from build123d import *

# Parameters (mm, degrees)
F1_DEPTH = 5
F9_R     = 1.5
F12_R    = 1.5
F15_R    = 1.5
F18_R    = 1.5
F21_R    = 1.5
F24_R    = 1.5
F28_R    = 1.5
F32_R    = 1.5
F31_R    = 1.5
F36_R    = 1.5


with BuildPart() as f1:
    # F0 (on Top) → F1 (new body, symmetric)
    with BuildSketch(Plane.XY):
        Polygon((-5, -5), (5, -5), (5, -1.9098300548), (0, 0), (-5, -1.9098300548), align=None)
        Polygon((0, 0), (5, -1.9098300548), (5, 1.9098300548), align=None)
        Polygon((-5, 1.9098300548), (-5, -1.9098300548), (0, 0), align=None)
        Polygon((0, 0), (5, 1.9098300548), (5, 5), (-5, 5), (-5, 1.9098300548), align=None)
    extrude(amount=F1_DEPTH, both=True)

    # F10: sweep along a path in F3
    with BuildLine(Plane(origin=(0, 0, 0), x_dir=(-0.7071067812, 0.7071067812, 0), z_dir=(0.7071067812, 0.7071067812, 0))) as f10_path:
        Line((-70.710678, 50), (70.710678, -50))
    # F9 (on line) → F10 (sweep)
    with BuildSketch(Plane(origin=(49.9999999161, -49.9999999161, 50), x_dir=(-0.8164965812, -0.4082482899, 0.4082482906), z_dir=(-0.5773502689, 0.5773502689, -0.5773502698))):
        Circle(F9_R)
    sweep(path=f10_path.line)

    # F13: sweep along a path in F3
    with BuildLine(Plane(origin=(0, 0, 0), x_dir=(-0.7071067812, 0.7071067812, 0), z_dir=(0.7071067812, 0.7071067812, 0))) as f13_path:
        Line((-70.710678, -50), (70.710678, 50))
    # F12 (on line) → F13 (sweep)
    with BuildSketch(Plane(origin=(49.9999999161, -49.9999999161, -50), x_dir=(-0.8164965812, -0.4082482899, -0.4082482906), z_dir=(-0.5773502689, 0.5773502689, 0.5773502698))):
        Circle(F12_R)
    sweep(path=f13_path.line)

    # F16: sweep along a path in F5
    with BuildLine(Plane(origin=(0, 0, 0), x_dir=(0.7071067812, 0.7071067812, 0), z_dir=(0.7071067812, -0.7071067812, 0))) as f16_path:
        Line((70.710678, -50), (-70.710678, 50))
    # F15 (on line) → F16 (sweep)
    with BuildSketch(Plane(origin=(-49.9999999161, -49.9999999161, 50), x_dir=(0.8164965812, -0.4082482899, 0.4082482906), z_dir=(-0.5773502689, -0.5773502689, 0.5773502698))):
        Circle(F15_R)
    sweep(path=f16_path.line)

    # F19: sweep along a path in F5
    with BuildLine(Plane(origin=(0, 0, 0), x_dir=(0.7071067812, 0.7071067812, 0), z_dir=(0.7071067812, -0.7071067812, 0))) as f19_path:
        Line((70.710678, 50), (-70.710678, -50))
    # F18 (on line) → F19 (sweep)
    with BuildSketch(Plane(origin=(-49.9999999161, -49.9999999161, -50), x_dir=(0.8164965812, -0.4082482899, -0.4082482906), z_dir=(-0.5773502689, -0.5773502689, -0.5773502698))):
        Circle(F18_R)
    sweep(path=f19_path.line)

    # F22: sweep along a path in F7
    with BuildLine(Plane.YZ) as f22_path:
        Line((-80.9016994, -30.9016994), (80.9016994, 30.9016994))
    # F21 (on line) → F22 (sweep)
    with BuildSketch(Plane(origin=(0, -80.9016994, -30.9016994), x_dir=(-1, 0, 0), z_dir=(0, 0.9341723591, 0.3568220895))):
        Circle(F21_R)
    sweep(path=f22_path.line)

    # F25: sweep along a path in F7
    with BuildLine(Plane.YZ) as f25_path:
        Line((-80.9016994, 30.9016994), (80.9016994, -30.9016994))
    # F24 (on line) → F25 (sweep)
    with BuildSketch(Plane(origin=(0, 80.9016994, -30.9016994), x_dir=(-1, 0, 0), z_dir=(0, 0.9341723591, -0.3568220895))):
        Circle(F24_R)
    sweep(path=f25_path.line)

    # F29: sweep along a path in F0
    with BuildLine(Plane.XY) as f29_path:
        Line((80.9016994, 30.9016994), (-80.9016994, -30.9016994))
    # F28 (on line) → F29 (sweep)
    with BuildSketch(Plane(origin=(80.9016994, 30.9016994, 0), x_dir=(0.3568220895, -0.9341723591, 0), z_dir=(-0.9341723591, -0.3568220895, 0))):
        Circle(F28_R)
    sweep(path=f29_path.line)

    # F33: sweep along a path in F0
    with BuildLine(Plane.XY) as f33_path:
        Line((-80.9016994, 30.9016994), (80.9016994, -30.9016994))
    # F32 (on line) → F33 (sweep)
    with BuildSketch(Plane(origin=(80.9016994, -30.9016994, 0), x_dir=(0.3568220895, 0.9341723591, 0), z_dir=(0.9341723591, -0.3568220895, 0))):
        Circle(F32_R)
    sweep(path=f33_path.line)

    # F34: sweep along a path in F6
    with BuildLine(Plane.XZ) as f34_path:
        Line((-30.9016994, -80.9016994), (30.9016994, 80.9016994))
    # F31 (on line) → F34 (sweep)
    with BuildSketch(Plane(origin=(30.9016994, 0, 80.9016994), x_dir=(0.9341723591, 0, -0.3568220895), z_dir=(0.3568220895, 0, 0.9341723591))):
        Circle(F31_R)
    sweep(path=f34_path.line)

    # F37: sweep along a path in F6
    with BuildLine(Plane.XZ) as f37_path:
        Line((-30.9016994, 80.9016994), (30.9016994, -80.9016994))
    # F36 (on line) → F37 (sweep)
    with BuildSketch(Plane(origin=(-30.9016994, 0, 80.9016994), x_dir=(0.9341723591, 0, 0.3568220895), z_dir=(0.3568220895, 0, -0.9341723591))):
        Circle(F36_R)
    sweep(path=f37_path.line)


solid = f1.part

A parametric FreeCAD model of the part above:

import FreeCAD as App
import Part
import Sketcher
from FreeCAD import Vector
Q = App.Units.Quantity

doc = App.newDocument("Part")
params = doc.addObject("Spreadsheet::Sheet", "Params")
for row, (alias, value) in enumerate([
    ("sketch1_width", "10 mm"),
    ("pad1_length", "10 mm"),
    ("sketch2_diameter", "3 mm"),
    ("sketch4_diameter", "3 mm"),
    ("sketch6_diameter", "3 mm"),
    ("sketch8_diameter", "3 mm"),
    ("sketch10_diameter", "3 mm"),
    ("sketch12_diameter", "3 mm"),
    ("sketch14_diameter", "3 mm"),
    ("sketch16_diameter", "3 mm"),
    ("sketch18_diameter", "3 mm"),
    ("sketch20_diameter", "3 mm"),
], start=1):
    params.set(f"A{row}", alias)
    params.set(f"B{row}", "=" + value)
    params.setAlias(f"B{row}", alias)

body = doc.addObject("PartDesign::Body", "Body")

# Sketch on XY plane
sketch1 = doc.addObject("Sketcher::SketchObject", "Sketch")
body.addObject(sketch1)
sketch1.AttachmentSupport = (doc.XY_Plane, [""])
sketch1.MapMode = "FlatFace"
sketch1.addGeometry([
    Part.LineSegment(Vector(-5, -5, 0), Vector(5, -5, 0)),
    Part.LineSegment(Vector(5, -5, 0), Vector(5, 5, 0)),
    Part.LineSegment(Vector(5, 5, 0), Vector(-5, 5, 0)),
    Part.LineSegment(Vector(-5, 5, 0), Vector(-5, -5, 0)),
], False)
sketch1.addConstraint([
    Sketcher.Constraint("Coincident", 0, 2, 1, 1),
    Sketcher.Constraint("Coincident", 1, 2, 2, 1),
    Sketcher.Constraint("Coincident", 2, 2, 3, 1),
    Sketcher.Constraint("Coincident", 3, 2, 0, 1),
    Sketcher.Constraint("Horizontal", 0),
    Sketcher.Constraint("Vertical", 1),
    Sketcher.Constraint("Horizontal", 2),
    Sketcher.Constraint("Vertical", 3),
    Sketcher.Constraint("Symmetric", 0, 2, 2, 2, -1, 1),
    Sketcher.Constraint("Equal", 2, 1),
    Sketcher.Constraint("DistanceX", 0, 1, 0, 2, Q("10 mm")),
])
sketch1.setExpression("Constraints[10]", "Params.sketch1_width")
pad1 = doc.addObject("PartDesign::Pad", "Pad")
body.addObject(pad1)
pad1.Profile = sketch1
pad1.setExpression("Length", "Params.pad1_length")
pad1.Midplane = True

# Sketch on an angled plane
sketch2 = doc.addObject("Sketcher::SketchObject", "Sketch001")
body.addObject(sketch2)
sketch2.Placement = App.Placement(Vector(50, -50, 50), App.Rotation(Vector(-0.816496581, -0.40824829, 0.408248291), Vector(0, 0.707106782, 0.707106781), Vector(-0.577350269, 0.577350269, -0.57735027), "ZXY"))
sketch2.addGeometry(Part.Circle(Vector(0, 0, 0), Vector(0, 0, 1), 1.5), False)
sketch2.addConstraint([
    Sketcher.Constraint("Coincident", 0, 3, -1, 1),
    Sketcher.Constraint("Diameter", 0, Q("3 mm")),
])
sketch2.setExpression("Constraints[1]", "Params.sketch2_diameter")

# Sketch on an angled plane
sketch3 = doc.addObject("Sketcher::SketchObject", "Sketch002")
body.addObject(sketch3)
sketch3.Placement = App.Placement(Vector(0, 0, 0), App.Rotation(Vector(-0.707106781, 0, -0.707106782), Vector(0, 1.000000001, 0), Vector(0.707106782, 0, -0.707106781), "ZXY"))
sketch3.addGeometry(Part.LineSegment(Vector(-71, -50, 0), Vector(71, 50, 0)), False)
sketch3.addConstraint([
    Sketcher.Constraint("Symmetric", 0, 1, 0, 2, -1, 1),
    Sketcher.Constraint("DistanceY", 0, 1, -1, 1, Q("50 mm")),
    Sketcher.Constraint("Distance", 0, Q("173.205081 mm")),
])
doc.recompute()

additivepipe = doc.addObject("PartDesign::AdditivePipe", "AdditivePipe")
body.addObject(additivepipe)
additivepipe.Profile = sketch2
additivepipe.Spine = (sketch3, ["Edge1"])

# Sketch on an angled plane
sketch4 = doc.addObject("Sketcher::SketchObject", "Sketch003")
body.addObject(sketch4)
sketch4.Placement = App.Placement(Vector(50, -50, -50), App.Rotation(Vector(-0.816496581, -0.40824829, -0.408248291), Vector(0, -0.707106782, 0.707106781), Vector(-0.577350269, 0.577350269, 0.57735027), "ZXY"))
sketch4.addGeometry(Part.Circle(Vector(0, 0, 0), Vector(0, 0, 1), 1.5), False)
sketch4.addConstraint([
    Sketcher.Constraint("Coincident", 0, 3, -1, 1),
    Sketcher.Constraint("Diameter", 0, Q("3 mm")),
])
sketch4.setExpression("Constraints[1]", "Params.sketch4_diameter")

# Sketch on an angled plane
sketch5 = doc.addObject("Sketcher::SketchObject", "Sketch004")
body.addObject(sketch5)
sketch5.Placement = App.Placement(Vector(0, 0, 0), App.Rotation(Vector(-0.707106781, 0, 0.707106782), Vector(0, 1.000000001, 0), Vector(-0.707106782, 0, -0.707106781), "ZXY"))
sketch5.addGeometry(Part.LineSegment(Vector(-71, -50, 0), Vector(71, 50, 0)), False)
sketch5.addConstraint([
    Sketcher.Constraint("Symmetric", 0, 1, 0, 2, -1, 1),
    Sketcher.Constraint("DistanceY", 0, 1, -1, 1, Q("50 mm")),
    Sketcher.Constraint("Distance", 0, Q("173.205081 mm")),
])
doc.recompute()

additivepipe2 = doc.addObject("PartDesign::AdditivePipe", "AdditivePipe001")
body.addObject(additivepipe2)
additivepipe2.Profile = sketch4
additivepipe2.Spine = (sketch5, ["Edge1"])

# Sketch on an angled plane
sketch6 = doc.addObject("Sketcher::SketchObject", "Sketch005")
body.addObject(sketch6)
sketch6.Placement = App.Placement(Vector(-50, -50, 50), App.Rotation(Vector(0.816496581, -0.40824829, 0.408248291), Vector(0, 0.707106782, 0.707106781), Vector(-0.577350269, -0.577350269, 0.57735027), "ZXY"))
sketch6.addGeometry(Part.Circle(Vector(0, 0, 0), Vector(0, 0, 1), 1.5), False)
sketch6.addConstraint([
    Sketcher.Constraint("Coincident", 0, 3, -1, 1),
    Sketcher.Constraint("Diameter", 0, Q("3 mm")),
])
sketch6.setExpression("Constraints[1]", "Params.sketch6_diameter")

# Sketch on an angled plane
sketch7 = doc.addObject("Sketcher::SketchObject", "Sketch006")
body.addObject(sketch7)
sketch7.Placement = App.Placement(Vector(0, 0, 0), App.Rotation(Vector(-0.707106781, 0, 0.707106782), Vector(0, 1.000000001, 0), Vector(-0.707106782, 0, -0.707106781), "ZXY"))
sketch7.addGeometry(Part.LineSegment(Vector(-71, 50, 0), Vector(71, -50, 0)), False)
sketch7.addConstraint([
    Sketcher.Constraint("Symmetric", 0, 1, 0, 2, -1, 1),
    Sketcher.Constraint("DistanceY", -1, 1, 0, 1, Q("50 mm")),
    Sketcher.Constraint("Distance", 0, Q("173.205081 mm")),
])
doc.recompute()

additivepipe3 = doc.addObject("PartDesign::AdditivePipe", "AdditivePipe002")
body.addObject(additivepipe3)
additivepipe3.Profile = sketch6
additivepipe3.Spine = (sketch7, ["Edge1"])

# Sketch on an angled plane
sketch8 = doc.addObject("Sketcher::SketchObject", "Sketch007")
body.addObject(sketch8)
sketch8.Placement = App.Placement(Vector(-50, -50, -50), App.Rotation(Vector(0.816496581, -0.40824829, -0.408248291), Vector(0, -0.707106782, 0.707106781), Vector(-0.577350269, -0.577350269, -0.57735027), "ZXY"))
sketch8.addGeometry(Part.Circle(Vector(0, 0, 0), Vector(0, 0, 1), 1.5), False)
sketch8.addConstraint([
    Sketcher.Constraint("Coincident", 0, 3, -1, 1),
    Sketcher.Constraint("Diameter", 0, Q("3 mm")),
])
sketch8.setExpression("Constraints[1]", "Params.sketch8_diameter")

# Sketch on an angled plane
sketch9 = doc.addObject("Sketcher::SketchObject", "Sketch008")
body.addObject(sketch9)
sketch9.Placement = App.Placement(Vector(0, 0, 0), App.Rotation(Vector(-0.707106781, 0, -0.707106782), Vector(0, 1.000000001, 0), Vector(0.707106782, 0, -0.707106781), "ZXY"))
sketch9.addGeometry(Part.LineSegment(Vector(-71, 50, 0), Vector(71, -50, 0)), False)
sketch9.addConstraint([
    Sketcher.Constraint("Symmetric", 0, 1, 0, 2, -1, 1),
    Sketcher.Constraint("DistanceY", -1, 1, 0, 1, Q("50 mm")),
    Sketcher.Constraint("Distance", 0, Q("173.205081 mm")),
])
doc.recompute()

additivepipe4 = doc.addObject("PartDesign::AdditivePipe", "AdditivePipe003")
body.addObject(additivepipe4)
additivepipe4.Profile = sketch8
additivepipe4.Spine = (sketch9, ["Edge1"])

# Sketch on an angled plane
sketch10 = doc.addObject("Sketcher::SketchObject", "Sketch009")
body.addObject(sketch10)
sketch10.Placement = App.Placement(Vector(0, -80.901699, -30.901699), App.Rotation(Vector(-1, 0, 0), Vector(0, -0.356822089, 0.934172359), Vector(0, 0.934172359, 0.356822089), "ZXY"))
sketch10.addGeometry(Part.Circle(Vector(0, 0, 0), Vector(0, 0, 1), 1.5), False)
sketch10.addConstraint([
    Sketcher.Constraint("Coincident", 0, 3, -1, 1),
    Sketcher.Constraint("Diameter", 0, Q("3 mm")),
])
sketch10.setExpression("Constraints[1]", "Params.sketch10_diameter")

# Sketch on an angled plane
sketch11 = doc.addObject("Sketcher::SketchObject", "Sketch010")
body.addObject(sketch11)
sketch11.Placement = App.Placement(Vector(0, 0, 0), App.Rotation(Vector(0, 0.934172359, 0.35682209), Vector(1, 0, 0), Vector(0, 0.35682209, -0.934172359), "ZXY"))
sketch11.addGeometry(Part.LineSegment(Vector(-87, 0, 0), Vector(87, 0, 0)), False)
sketch11.addConstraint([
    Sketcher.Constraint("Horizontal", 0),
    Sketcher.Constraint("Symmetric", 0, 1, 0, 2, -1, 1),
    Sketcher.Constraint("DistanceX", 0, 1, 0, 2, Q("173.205081 mm")),
])
doc.recompute()

additivepipe5 = doc.addObject("PartDesign::AdditivePipe", "AdditivePipe004")
body.addObject(additivepipe5)
additivepipe5.Profile = sketch10
additivepipe5.Spine = (sketch11, ["Edge1"])

# Sketch on an angled plane
sketch12 = doc.addObject("Sketcher::SketchObject", "Sketch011")
body.addObject(sketch12)
sketch12.Placement = App.Placement(Vector(0, 80.901699, -30.901699), App.Rotation(Vector(-1, 0, 0), Vector(0, 0.356822089, 0.934172359), Vector(0, 0.934172359, -0.356822089), "ZXY"))
sketch12.addGeometry(Part.Circle(Vector(0, 0, 0), Vector(0, 0, 1), 1.5), False)
sketch12.addConstraint([
    Sketcher.Constraint("Coincident", 0, 3, -1, 1),
    Sketcher.Constraint("Diameter", 0, Q("3 mm")),
])
sketch12.setExpression("Constraints[1]", "Params.sketch12_diameter")

# Sketch on an angled plane
sketch13 = doc.addObject("Sketcher::SketchObject", "Sketch012")
body.addObject(sketch13)
sketch13.Placement = App.Placement(Vector(0, 0, 0), App.Rotation(Vector(0, 0.934172359, -0.35682209), Vector(1, 0, 0), Vector(0, -0.35682209, -0.934172359), "ZXY"))
sketch13.addGeometry(Part.LineSegment(Vector(-87, 0, 0), Vector(87, 0, 0)), False)
sketch13.addConstraint([
    Sketcher.Constraint("Horizontal", 0),
    Sketcher.Constraint("Symmetric", 0, 1, 0, 2, -1, 1),
    Sketcher.Constraint("DistanceX", 0, 1, 0, 2, Q("173.205081 mm")),
])
doc.recompute()

additivepipe6 = doc.addObject("PartDesign::AdditivePipe", "AdditivePipe005")
body.addObject(additivepipe6)
additivepipe6.Profile = sketch12
additivepipe6.Spine = (sketch13, ["Edge1"])

# Sketch on an angled plane
sketch14 = doc.addObject("Sketcher::SketchObject", "Sketch013")
body.addObject(sketch14)
sketch14.Placement = App.Placement(Vector(80.901699, 30.901699, 0), App.Rotation(Vector(0.356822089, -0.934172359, 0), Vector(0, 0, 1), Vector(-0.934172359, -0.356822089, 0), "ZXY"))
sketch14.addGeometry(Part.Circle(Vector(0, 0, 0), Vector(0, 0, 1), 1.5), False)
sketch14.addConstraint([
    Sketcher.Constraint("Coincident", 0, 3, -1, 1),
    Sketcher.Constraint("Diameter", 0, Q("3 mm")),
])
sketch14.setExpression("Constraints[1]", "Params.sketch14_diameter")

# Sketch on an angled plane
sketch15 = doc.addObject("Sketcher::SketchObject", "Sketch014")
body.addObject(sketch15)
sketch15.Placement = App.Placement(Vector(0, 0, 0), App.Rotation(Vector(-0.934172359, -0.35682209, 0), Vector(0, 0, 1), Vector(-0.35682209, 0.934172359, 0), "ZXY"))
sketch15.addGeometry(Part.LineSegment(Vector(-87, 0, 0), Vector(87, 0, 0)), False)
sketch15.addConstraint([
    Sketcher.Constraint("Horizontal", 0),
    Sketcher.Constraint("Symmetric", 0, 1, 0, 2, -1, 1),
    Sketcher.Constraint("DistanceX", 0, 1, 0, 2, Q("173.205081 mm")),
])
doc.recompute()

additivepipe7 = doc.addObject("PartDesign::AdditivePipe", "AdditivePipe006")
body.addObject(additivepipe7)
additivepipe7.Profile = sketch14
additivepipe7.Spine = (sketch15, ["Edge1"])

# Sketch on an angled plane
sketch16 = doc.addObject("Sketcher::SketchObject", "Sketch015")
body.addObject(sketch16)
sketch16.Placement = App.Placement(Vector(80.901699, -30.901699, 0), App.Rotation(Vector(0.356822089, 0.934172359, 0), Vector(0, 0, 1), Vector(0.934172359, -0.356822089, 0), "ZXY"))
sketch16.addGeometry(Part.Circle(Vector(0, 0, 0), Vector(0, 0, 1), 1.5), False)
sketch16.addConstraint([
    Sketcher.Constraint("Coincident", 0, 3, -1, 1),
    Sketcher.Constraint("Diameter", 0, Q("3 mm")),
])
sketch16.setExpression("Constraints[1]", "Params.sketch16_diameter")

# Sketch on an angled plane
sketch17 = doc.addObject("Sketcher::SketchObject", "Sketch016")
body.addObject(sketch17)
sketch17.Placement = App.Placement(Vector(0, 0, 0), App.Rotation(Vector(0.934172359, -0.35682209, 0), Vector(0, 0, 1), Vector(-0.35682209, -0.934172359, 0), "ZXY"))
sketch17.addGeometry(Part.LineSegment(Vector(-87, 0, 0), Vector(87, 0, 0)), False)
sketch17.addConstraint([
    Sketcher.Constraint("Horizontal", 0),
    Sketcher.Constraint("Symmetric", 0, 1, 0, 2, -1, 1),
    Sketcher.Constraint("DistanceX", 0, 1, 0, 2, Q("173.205081 mm")),
])
doc.recompute()

additivepipe8 = doc.addObject("PartDesign::AdditivePipe", "AdditivePipe007")
body.addObject(additivepipe8)
additivepipe8.Profile = sketch16
additivepipe8.Spine = (sketch17, ["Edge1"])

# Sketch on an angled plane
sketch18 = doc.addObject("Sketcher::SketchObject", "Sketch017")
body.addObject(sketch18)
sketch18.Placement = App.Placement(Vector(30.901699, 0, 80.901699), App.Rotation(Vector(0.934172359, 0, -0.356822089), Vector(0, 1, 0), Vector(0.356822089, 0, 0.934172359), "ZXY"))
sketch18.addGeometry(Part.Circle(Vector(0, 0, 0), Vector(0, 0, 1), 1.5), False)
sketch18.addConstraint([
    Sketcher.Constraint("Coincident", 0, 3, -1, 1),
    Sketcher.Constraint("Diameter", 0, Q("3 mm")),
])
sketch18.setExpression("Constraints[1]", "Params.sketch18_diameter")

# Sketch on an angled plane
sketch19 = doc.addObject("Sketcher::SketchObject", "Sketch018")
body.addObject(sketch19)
sketch19.Placement = App.Placement(Vector(0, 0, 0), App.Rotation(Vector(0.35682209, 0, 0.934172359), Vector(0, 1, 0), Vector(-0.934172359, 0, 0.35682209), "ZXY"))
sketch19.addGeometry(Part.LineSegment(Vector(-87, 0, 0), Vector(87, 0, 0)), False)
sketch19.addConstraint([
    Sketcher.Constraint("Horizontal", 0),
    Sketcher.Constraint("Symmetric", 0, 1, 0, 2, -1, 1),
    Sketcher.Constraint("DistanceX", 0, 1, 0, 2, Q("173.205081 mm")),
])
doc.recompute()

additivepipe9 = doc.addObject("PartDesign::AdditivePipe", "AdditivePipe008")
body.addObject(additivepipe9)
additivepipe9.Profile = sketch18
additivepipe9.Spine = (sketch19, ["Edge1"])

# Sketch on an angled plane
sketch20 = doc.addObject("Sketcher::SketchObject", "Sketch019")
body.addObject(sketch20)
sketch20.Placement = App.Placement(Vector(-30.901699, 0, 80.901699), App.Rotation(Vector(0.934172359, 0, 0.356822089), Vector(0, -1, 0), Vector(0.356822089, 0, -0.934172359), "ZXY"))
sketch20.addGeometry(Part.Circle(Vector(0, 0, 0), Vector(0, 0, 1), 1.5), False)
sketch20.addConstraint([
    Sketcher.Constraint("Coincident", 0, 3, -1, 1),
    Sketcher.Constraint("Diameter", 0, Q("3 mm")),
])
sketch20.setExpression("Constraints[1]", "Params.sketch20_diameter")

# Sketch on an angled plane
sketch21 = doc.addObject("Sketcher::SketchObject", "Sketch020")
body.addObject(sketch21)
sketch21.Placement = App.Placement(Vector(0, 0, 0), App.Rotation(Vector(0.35682209, 0, -0.934172359), Vector(0, 1, 0), Vector(0.934172359, 0, 0.35682209), "ZXY"))
sketch21.addGeometry(Part.LineSegment(Vector(-87, 0, 0), Vector(87, 0, 0)), False)
sketch21.addConstraint([
    Sketcher.Constraint("Horizontal", 0),
    Sketcher.Constraint("Symmetric", 0, 1, 0, 2, -1, 1),
    Sketcher.Constraint("DistanceX", 0, 1, 0, 2, Q("173.205081 mm")),
])
doc.recompute()

additivepipe10 = doc.addObject("PartDesign::AdditivePipe", "AdditivePipe009")
body.addObject(additivepipe10)
additivepipe10.Profile = sketch20
additivepipe10.Spine = (sketch21, ["Edge1"])

doc.recompute()
